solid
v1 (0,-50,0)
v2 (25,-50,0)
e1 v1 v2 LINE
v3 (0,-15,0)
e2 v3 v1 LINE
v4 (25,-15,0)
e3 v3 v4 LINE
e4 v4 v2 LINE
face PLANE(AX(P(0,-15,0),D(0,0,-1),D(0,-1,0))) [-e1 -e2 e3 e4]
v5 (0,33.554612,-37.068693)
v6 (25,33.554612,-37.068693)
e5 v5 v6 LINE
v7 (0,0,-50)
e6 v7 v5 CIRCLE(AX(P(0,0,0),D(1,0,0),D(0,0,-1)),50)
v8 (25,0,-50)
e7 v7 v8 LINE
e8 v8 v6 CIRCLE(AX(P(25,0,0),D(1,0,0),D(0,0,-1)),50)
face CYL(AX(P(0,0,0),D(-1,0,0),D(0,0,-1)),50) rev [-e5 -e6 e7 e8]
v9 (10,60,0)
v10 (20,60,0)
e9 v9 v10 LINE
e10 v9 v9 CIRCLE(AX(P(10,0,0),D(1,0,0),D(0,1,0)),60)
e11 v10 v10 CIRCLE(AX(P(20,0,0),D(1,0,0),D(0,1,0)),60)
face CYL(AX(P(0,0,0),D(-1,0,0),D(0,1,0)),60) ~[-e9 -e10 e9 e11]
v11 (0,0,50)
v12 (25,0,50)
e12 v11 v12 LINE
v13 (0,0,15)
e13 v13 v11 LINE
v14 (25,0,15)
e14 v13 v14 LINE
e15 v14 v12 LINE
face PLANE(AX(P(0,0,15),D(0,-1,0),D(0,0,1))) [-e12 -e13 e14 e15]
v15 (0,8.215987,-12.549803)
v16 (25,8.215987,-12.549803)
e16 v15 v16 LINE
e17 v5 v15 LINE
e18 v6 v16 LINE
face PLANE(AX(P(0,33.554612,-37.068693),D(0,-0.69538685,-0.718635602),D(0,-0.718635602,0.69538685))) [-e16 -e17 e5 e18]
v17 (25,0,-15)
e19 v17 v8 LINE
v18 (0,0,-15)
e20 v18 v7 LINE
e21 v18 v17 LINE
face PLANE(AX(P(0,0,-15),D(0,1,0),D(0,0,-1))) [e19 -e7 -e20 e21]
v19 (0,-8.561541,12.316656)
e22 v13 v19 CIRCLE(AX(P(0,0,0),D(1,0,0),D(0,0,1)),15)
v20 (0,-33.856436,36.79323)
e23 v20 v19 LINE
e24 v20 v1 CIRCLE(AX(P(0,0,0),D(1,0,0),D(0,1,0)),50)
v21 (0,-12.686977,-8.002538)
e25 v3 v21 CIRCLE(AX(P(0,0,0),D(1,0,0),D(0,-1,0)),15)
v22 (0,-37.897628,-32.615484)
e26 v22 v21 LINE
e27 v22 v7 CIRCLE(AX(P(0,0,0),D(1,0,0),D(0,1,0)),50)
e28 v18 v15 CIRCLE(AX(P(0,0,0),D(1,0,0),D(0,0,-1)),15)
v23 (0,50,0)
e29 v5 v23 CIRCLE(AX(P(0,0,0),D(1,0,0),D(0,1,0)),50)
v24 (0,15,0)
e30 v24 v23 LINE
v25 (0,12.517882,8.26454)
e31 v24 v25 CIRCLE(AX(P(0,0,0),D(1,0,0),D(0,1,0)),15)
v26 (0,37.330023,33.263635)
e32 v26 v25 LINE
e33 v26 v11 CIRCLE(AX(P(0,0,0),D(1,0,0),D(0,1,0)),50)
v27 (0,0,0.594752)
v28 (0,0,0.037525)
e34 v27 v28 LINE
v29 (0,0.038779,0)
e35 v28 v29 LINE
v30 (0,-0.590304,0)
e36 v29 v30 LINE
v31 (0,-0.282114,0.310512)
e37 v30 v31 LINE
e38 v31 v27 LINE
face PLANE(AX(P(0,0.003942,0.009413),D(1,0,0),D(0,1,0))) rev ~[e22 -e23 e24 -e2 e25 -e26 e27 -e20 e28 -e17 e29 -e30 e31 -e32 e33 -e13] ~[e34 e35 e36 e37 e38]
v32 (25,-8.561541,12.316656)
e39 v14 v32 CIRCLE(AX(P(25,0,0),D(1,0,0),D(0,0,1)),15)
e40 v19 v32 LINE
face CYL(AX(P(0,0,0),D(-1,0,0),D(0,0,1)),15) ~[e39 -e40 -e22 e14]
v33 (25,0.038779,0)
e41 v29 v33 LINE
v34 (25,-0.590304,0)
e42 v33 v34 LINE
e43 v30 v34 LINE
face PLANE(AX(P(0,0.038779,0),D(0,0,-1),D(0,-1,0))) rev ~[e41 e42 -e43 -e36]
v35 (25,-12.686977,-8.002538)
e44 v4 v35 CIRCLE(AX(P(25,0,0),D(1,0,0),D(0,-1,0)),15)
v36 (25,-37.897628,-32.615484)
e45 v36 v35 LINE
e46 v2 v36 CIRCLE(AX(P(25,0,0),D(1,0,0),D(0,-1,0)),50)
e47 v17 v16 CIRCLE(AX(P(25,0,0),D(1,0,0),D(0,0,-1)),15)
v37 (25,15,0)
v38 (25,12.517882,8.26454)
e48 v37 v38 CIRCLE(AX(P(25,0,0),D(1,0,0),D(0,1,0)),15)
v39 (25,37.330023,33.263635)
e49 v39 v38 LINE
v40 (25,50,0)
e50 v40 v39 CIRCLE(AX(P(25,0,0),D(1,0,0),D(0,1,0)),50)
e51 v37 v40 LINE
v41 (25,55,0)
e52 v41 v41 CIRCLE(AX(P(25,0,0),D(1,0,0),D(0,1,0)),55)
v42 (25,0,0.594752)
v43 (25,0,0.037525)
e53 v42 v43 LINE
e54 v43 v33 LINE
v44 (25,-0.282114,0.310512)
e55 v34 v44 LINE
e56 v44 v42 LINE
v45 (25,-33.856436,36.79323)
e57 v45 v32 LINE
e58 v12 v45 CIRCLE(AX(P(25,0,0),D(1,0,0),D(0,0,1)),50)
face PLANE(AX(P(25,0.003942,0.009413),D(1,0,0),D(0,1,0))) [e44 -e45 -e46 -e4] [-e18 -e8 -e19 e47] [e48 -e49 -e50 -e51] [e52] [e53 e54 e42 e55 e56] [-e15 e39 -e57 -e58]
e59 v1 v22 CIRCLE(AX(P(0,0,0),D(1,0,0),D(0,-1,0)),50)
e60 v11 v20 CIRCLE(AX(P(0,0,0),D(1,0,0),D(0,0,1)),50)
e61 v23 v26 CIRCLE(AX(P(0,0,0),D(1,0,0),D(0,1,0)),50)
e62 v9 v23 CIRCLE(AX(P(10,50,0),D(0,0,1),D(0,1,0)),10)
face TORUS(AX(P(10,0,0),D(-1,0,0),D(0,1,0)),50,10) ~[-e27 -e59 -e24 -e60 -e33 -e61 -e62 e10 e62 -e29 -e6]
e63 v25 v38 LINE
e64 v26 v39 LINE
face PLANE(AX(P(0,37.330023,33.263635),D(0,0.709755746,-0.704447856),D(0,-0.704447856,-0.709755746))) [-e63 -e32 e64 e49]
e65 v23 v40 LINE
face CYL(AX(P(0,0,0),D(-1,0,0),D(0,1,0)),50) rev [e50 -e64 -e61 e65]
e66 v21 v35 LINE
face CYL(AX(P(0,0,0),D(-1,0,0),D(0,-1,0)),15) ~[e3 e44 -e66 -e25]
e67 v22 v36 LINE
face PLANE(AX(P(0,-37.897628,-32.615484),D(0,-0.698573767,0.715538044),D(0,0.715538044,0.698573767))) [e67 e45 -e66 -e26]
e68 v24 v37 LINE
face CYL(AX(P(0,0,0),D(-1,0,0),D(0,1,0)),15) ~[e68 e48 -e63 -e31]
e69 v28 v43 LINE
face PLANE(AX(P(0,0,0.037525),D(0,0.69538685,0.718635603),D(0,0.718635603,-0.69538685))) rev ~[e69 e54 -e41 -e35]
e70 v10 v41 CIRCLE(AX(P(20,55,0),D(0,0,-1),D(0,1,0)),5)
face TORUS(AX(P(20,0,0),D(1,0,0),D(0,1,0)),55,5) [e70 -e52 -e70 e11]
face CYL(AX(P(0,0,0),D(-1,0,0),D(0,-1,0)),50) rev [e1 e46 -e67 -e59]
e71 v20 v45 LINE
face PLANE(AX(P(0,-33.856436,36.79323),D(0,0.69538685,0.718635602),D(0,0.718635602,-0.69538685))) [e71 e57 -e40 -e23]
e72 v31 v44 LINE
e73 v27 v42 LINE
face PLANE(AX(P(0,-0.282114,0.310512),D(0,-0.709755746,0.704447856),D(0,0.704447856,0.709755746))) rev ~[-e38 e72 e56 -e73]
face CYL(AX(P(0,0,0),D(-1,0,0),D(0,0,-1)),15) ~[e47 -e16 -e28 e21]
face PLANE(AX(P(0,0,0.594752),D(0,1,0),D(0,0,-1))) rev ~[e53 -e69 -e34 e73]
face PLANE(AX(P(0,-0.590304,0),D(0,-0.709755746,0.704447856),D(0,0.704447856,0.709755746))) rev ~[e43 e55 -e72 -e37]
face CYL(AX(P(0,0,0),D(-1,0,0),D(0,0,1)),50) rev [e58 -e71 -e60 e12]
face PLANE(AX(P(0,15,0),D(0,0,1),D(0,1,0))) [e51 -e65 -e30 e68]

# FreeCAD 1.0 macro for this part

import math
import FreeCAD as App
import Part
import Sketcher
Q = App.Units.Quantity


def edges_at(feature, points):
    """Names of the edges that pass closest to the given points."""
    edges = feature.Shape.Edges
    near = lambda p: min(range(len(edges)), key=lambda i: edges[i].distToShape(Part.Vertex(*p))[0])
    return sorted({f"Edge{near(p) + 1}" for p in points})

doc = App.newDocument("Part")
params = doc.addObject("Spreadsheet::Sheet", "Params")
for row, (alias, value) in enumerate([
    ("sketch1_diameter", "120 mm"),
    ("sketch1_radius", "15 mm"),
    ("pad1_length", "25 mm"),
    ("fillet_radius", "5 mm"),
    ("fillet2_radius", "10 mm"),
    ("sketch2_radius", "50 mm"),
    ("sketch2_radius2", "15 mm"),
    ("sketch3_radius", "15 mm"),
    ("pad2_length", "25 mm"),
], start=1):
    params.set(f"A{row}", alias)
    params.set(f"B{row}", "=" + value)
    params.setAlias(f"B{row}", alias)

body = doc.addObject("PartDesign::Body", "Body")

# Sketch on YZ plane
sketch1 = body.newObject("Sketcher::SketchObject", "Sketch")
sketch1.AttachmentSupport = (doc.getObject("YZ_Plane"), [""])
sketch1.MapMode = "FlatFace"
sketch1.addGeometry(Part.Circle(App.Vector(0, 0, 0), App.Vector(0, 0, 1), 60), False)
sketch1.addGeometry(Part.ArcOfCircle(Part.Circle(App.Vector(0, 0, 0), App.Vector(0, 0, 1), 15), math.radians(0), math.radians(33)), False)
sketch1.addGeometry(Part.ArcOfCircle(Part.Circle(App.Vector(0, 0, 0), App.Vector(0, 0, 1), 15), math.radians(-44), math.radians(0)), False)
sketch1.addGeometry(Part.ArcOfCircle(Part.Circle(App.Vector(0, 0, 0), App.Vector(0, 0, 1), 15), math.radians(-56.79), math.radians(-43.96)), False)
sketch1.addGeometry(Part.ArcOfCircle(Part.Circle(App.Vector(0, 0, 0), App.Vector(0, 0, 1), 15), math.radians(-90), math.radians(-57)), False)
sketch1.addGeometry(Part.ArcOfCircle(Part.Circle(App.Vector(0, 0, 0), App.Vector(0, 0, 1), 15), math.radians(-136), math.radians(-90)), False)
sketch1.addGeometry(Part.ArcOfCircle(Part.Circle(App.Vector(0, 0, 0), App.Vector(0, 0, 1), 15), math.radians(-147.76), math.radians(-136.39)), False)
sketch1.addGeometry(Part.ArcOfCircle(Part.Circle(App.Vector(0, 0, 0), App.Vector(0, 0, 1), 15), math.radians(180), math.radians(212)), False)
sketch1.addGeometry(Part.ArcOfCircle(Part.Circle(App.Vector(0, 0, 0), App.Vector(0, 0, 1), 15), math.radians(136), math.radians(180)), False)
sketch1.addGeometry(Part.ArcOfCircle(Part.Circle(App.Vector(0, 0, 0), App.Vector(0, 0, 1), 15), math.radians(124.8), math.radians(135.84)), False)
sketch1.addGeometry(Part.ArcOfCircle(Part.Circle(App.Vector(0, 0, 0), App.Vector(0, 0, 1), 15), math.radians(90), math.radians(125)), False)
sketch1.addGeometry(Part.ArcOfCircle(Part.Circle(App.Vector(0, 0, 0), App.Vector(0, 0, 1), 15), math.radians(78.25), math.radians(90)), False)
sketch1.addGeometry(Part.ArcOfCircle(Part.Circle(App.Vector(0, 0, 0), App.Vector(0, 0, 1), 15), math.radians(47), math.radians(78)), False)
sketch1.addGeometry(Part.ArcOfCircle(Part.Circle(App.Vector(0, 0, 0), App.Vector(0, 0, 1), 15), math.radians(33.43), math.radians(46.82)), False)
sketch1.addConstraint(Sketcher.Constraint("Tangent", 1, 1, 2, 2))
sketch1.addConstraint(Sketcher.Constraint("Tangent", 2, 1, 3, 2))
sketch1.addConstraint(Sketcher.Constraint("Tangent", 3, 1, 4, 2))
sketch1.addConstraint(Sketcher.Constraint("Tangent", 4, 1, 5, 2))
sketch1.addConstraint(Sketcher.Constraint("Tangent", 5, 1, 6, 2))
sketch1.addConstraint(Sketcher.Constraint("Tangent", 6, 1, 7, 2))
sketch1.addConstraint(Sketcher.Constraint("Tangent", 7, 1, 8, 2))
sketch1.addConstraint(Sketcher.Constraint("Tangent", 8, 1, 9, 2))
sketch1.addConstraint(Sketcher.Constraint("Tangent", 9, 1, 10, 2))
sketch1.addConstraint(Sketcher.Constraint("Tangent", 10, 1, 11, 2))
sketch1.addConstraint(Sketcher.Constraint("Tangent", 11, 1, 12, 2))
sketch1.addConstraint(Sketcher.Constraint("Tangent", 12, 1, 13, 2))
sketch1.addConstraint(Sketcher.Constraint("Tangent", 13, 1, 1, 2))
sketch1.addConstraint(Sketcher.Constraint("Coincident", 0, 3, -1, 1))
sketch1.addConstraint(Sketcher.Constraint("Coincident", 1, 3, -1, 1))
sketch1.addConstraint(Sketcher.Constraint("Coincident", 3, 3, -1, 1))
sketch1.addConstraint(Sketcher.Constraint("Coincident", 5, 3, -1, 1))
sketch1.addConstraint(Sketcher.Constraint("Coincident", 7, 3, -1, 1))
sketch1.addConstraint(Sketcher.Constraint("Coincident", 9, 3, -1, 1))
sketch1.addConstraint(Sketcher.Constraint("Coincident", 11, 3, -1, 1))
sketch1.addConstraint(Sketcher.Constraint("PointOnObject", 1, 1, -1))
sketch1.addConstraint(Sketcher.Constraint("PointOnObject", 4, 1, -2))
sketch1.addConstraint(Sketcher.Constraint("PointOnObject", 7, 1, -1))
sketch1.addConstraint(Sketcher.Constraint("PointOnObject", 10, 1, -2))
sketch1.addConstraint(Sketcher.Constraint("Diameter", 0, Q("120 mm")))
sketch1.addConstraint(Sketcher.Constraint("Radius", 1, Q("15 mm")))
sketch1.addConstraint(Sketcher.Constraint("DistanceY", 5, 1, 6, 1, Q("2.344501 mm")))
sketch1.addConstraint(Sketcher.Constraint("DistanceX", -1, 1, 2, 1, Q("10.798269 mm")))
sketch1.addConstraint(Sketcher.Constraint("DistanceY", 5, 1, -1, 1, Q("10.347039 mm")))
sketch1.addConstraint(Sketcher.Constraint("DistanceX", 9, 1, -1, 1, Q("8.561541 mm")))
sketch1.addConstraint(Sketcher.Constraint("DistanceY", -1, 1, 13, 1, Q("8.26454 mm")))
sketch1.addConstraint(Sketcher.Constraint("DistanceY", 8, 1, 9, 1, Q("1.866491 mm")))
sketch1.addConstraint(Sketcher.Constraint("DistanceY", 9, 1, 11, 1, Q("2.36912 mm")))
sketch1.addConstraint(Sketcher.Constraint("DistanceY", 12, 1, 11, 1, Q("3.74845 mm")))
sketch1.addConstraint(Sketcher.Constraint("DistanceX", -1, 1, 3, 1, Q("8.215987 mm")))
sketch1.setExpression("Constraints[24]", "Params.sketch1_diameter")
sketch1.setExpression("Constraints[25]", "Params.sketch1_radius")
pad1 = body.newObject("PartDesign::Pad", "Pad")
pad1.Profile = sketch1
pad1.setExpression("Length", "Params.pad1_length")
doc.recompute()

fillet = body.newObject("PartDesign::Fillet", "Fillet")
fillet.Base = (pad1, edges_at(pad1, [(25, -60, 0)]))
fillet.setExpression("Radius", "Params.fillet_radius")
doc.recompute()

fillet2 = body.newObject("PartDesign::Fillet", "Fillet001")
fillet2.Base = (fillet, edges_at(fillet, [(0, -60, 0)]))
fillet2.setExpression("Radius", "Params.fillet2_radius")

# Sketch on YZ plane
sketch2 = body.newObject("Sketcher::SketchObject", "Sketch001")
sketch2.AttachmentSupport = (doc.getObject("YZ_Plane"), [""])
sketch2.MapMode = "FlatFace"
sketch2.addGeometry(Part.LineSegment(App.Vector(0, 15, 0), App.Vector(0, 50, 0)), False)
sketch2.addGeometry(Part.ArcOfCircle(Part.Circle(App.Vector(0, 0, 0), App.Vector(0, 0, 1), 50), math.radians(90), math.radians(133)), False)
sketch2.addGeometry(Part.LineSegment(App.Vector(-34, 37, 0), App.Vector(-9, 12, 0)), False)
sketch2.addGeometry(Part.ArcOfCircle(Part.Circle(App.Vector(0, 0, 0), App.Vector(0, 0, 1), 15), math.radians(90), math.radians(125)), False)
sketch2.addGeometry(Part.ArcOfCircle(Part.Circle(App.Vector(0, 0, 0), App.Vector(0, 0, 1), 50), math.radians(180), math.radians(221)), False)
sketch2.addGeometry(Part.LineSegment(App.Vector(-38, -33, 0), App.Vector(-13, -8, 0)), False)
sketch2.addGeometry(Part.ArcOfCircle(Part.Circle(App.Vector(0, 0, 0), App.Vector(0, 0, 1), 15), math.radians(180), math.radians(212)), False)
sketch2.addGeometry(Part.LineSegment(App.Vector(-15, 0, 0), App.Vector(-50, 0, 0)), False)
sketch2.addGeometry(Part.ArcOfCircle(Part.Circle(App.Vector(0, 0, 0), App.Vector(0, 0, 1), 50), math.radians(-90), math.radians(-48)), False)
sketch2.addGeometry(Part.LineSegment(App.Vector(34, -37, 0), App.Vector(8, -13, 0)), False)
sketch2.addGeometry(Part.ArcOfCircle(Part.Circle(App.Vector(0, 0, 0), App.Vector(0, 0, 1), 15), math.radians(-90), math.radians(-57)), False)
sketch2.addGeometry(Part.LineSegment(App.Vector(0, -15, 0), App.Vector(0, -50, 0)), False)
sketch2.addGeometry(Part.LineSegment(App.Vector(15, 0, 0), App.Vector(50, 0, 0)), False)
sketch2.addGeometry(Part.ArcOfCircle(Part.Circle(App.Vector(0, 0, 0), App.Vector(0, 0, 1), 50), math.radians(0), math.radians(42)), False)
sketch2.addGeometry(Part.LineSegment(App.Vector(37, 33, 0), App.Vector(13, 8, 0)), False)
sketch2.addGeometry(Part.ArcOfCircle(Part.Circle(App.Vector(0, 0, 0), App.Vector(0, 0, 1), 15), math.radians(0), math.radians(33)), False)
sketch2.addConstraint(Sketcher.Constraint("Coincident", 0, 2, 1, 1))
sketch2.addConstraint(Sketcher.Constraint("Coincident", 1, 2, 2, 1))
sketch2.addConstraint(Sketcher.Constraint("Coincident", 2, 2, 3, 2))
sketch2.addConstraint(Sketcher.Constraint("Coincident", 3, 1, 0, 1))
sketch2.addConstraint(Sketcher.Constraint("Coincident", 4, 2, 5, 1))
sketch2.addConstraint(Sketcher.Constraint("Coincident", 5, 2, 6, 2))
sketch2.addConstraint(Sketcher.Constraint("Coincident", 6, 1, 7, 1))
sketch2.addConstraint(Sketcher.Constraint("Coincident", 7, 2, 4, 1))
sketch2.addConstraint(Sketcher.Constraint("Coincident", 8, 2, 9, 1))
sketch2.addConstraint(Sketcher.Constraint("Coincident", 9, 2, 10, 2))
sketch2.addConstraint(Sketcher.Constraint("Coincident", 10, 1, 11, 1))
sketch2.addConstraint(Sketcher.Constraint("Coincident", 11, 2, 8, 1))
sketch2.addConstraint(Sketcher.Constraint("Coincident", 12, 2, 13, 1))
sketch2.addConstraint(Sketcher.Constraint("Coincident", 13, 2, 14, 1))
sketch2.addConstraint(Sketcher.Constraint("Coincident", 14, 2, 15, 2))
sketch2.addConstraint(Sketcher.Constraint("Coincident", 15, 1, 12, 1))
sketch2.addConstraint(Sketcher.Constraint("Vertical", 0))
sketch2.addConstraint(Sketcher.Constraint("Horizontal", 7))
sketch2.addConstraint(Sketcher.Constraint("Vertical", 11))
sketch2.addConstraint(Sketcher.Constraint("Horizontal", 12))
sketch2.addConstraint(Sketcher.Constraint("Coincident", 1, 3, -1, 1))
sketch2.addConstraint(Sketcher.Constraint("Coincident", 3, 3, -1, 1))
sketch2.addConstraint(Sketcher.Constraint("Coincident", 4, 3, -1, 1))
sketch2.addConstraint(Sketcher.Constraint("Coincident", 6, 3, -1, 1))
sketch2.addConstraint(Sketcher.Constraint("Coincident", 8, 3, -1, 1))
sketch2.addConstraint(Sketcher.Constraint("Coincident", 10, 3, -1, 1))
sketch2.addConstraint(Sketcher.Constraint("Coincident", 13, 3, -1, 1))
sketch2.addConstraint(Sketcher.Constraint("Coincident", 15, 3, -1, 1))
sketch2.addConstraint(Sketcher.Constraint("Equal", 1, 4))
sketch2.addConstraint(Sketcher.Constraint("Equal", 3, 6))
sketch2.addConstraint(Sketcher.Constraint("Equal", 4, 8))
sketch2.addConstraint(Sketcher.Constraint("Equal", 6, 10))
sketch2.addConstraint(Sketcher.Constraint("Equal", 8, 13))
sketch2.addConstraint(Sketcher.Constraint("Equal", 10, 15))
sketch2.addConstraint(Sketcher.Constraint("PointOnObject", 0, 2, -2))
sketch2.addConstraint(Sketcher.Constraint("PointOnObject", 6, 1, -1))
sketch2.addConstraint(Sketcher.Constraint("PointOnObject", 10, 1, -2))
sketch2.addConstraint(Sketcher.Constraint("PointOnObject", 12, 2, -1))
sketch2.addConstraint(Sketcher.Constraint("Parallel", 2, 9))
sketch2.addConstraint(Sketcher.Constraint("Radius", 1, Q("50 mm")))
sketch2.addConstraint(Sketcher.Constraint("Radius", 3, Q("15 mm")))
sketch2.addConstraint(Sketcher.Constraint("Distance", 2, Q("35.198499 mm")))
sketch2.addConstraint(Sketcher.Constraint("Distance", 5, Q("35.233138 mm")))
sketch2.addConstraint(Sketcher.Constraint("Distance", 9, Q("35.259352 mm")))
sketch2.addConstraint(Sketcher.Constraint("Distance", 14, Q("35.22211 mm")))
sketch2.addConstraint(Sketcher.Constraint("DistanceY", -1, 1, 1, 2, Q("36.79323 mm")))
sketch2.addConstraint(Sketcher.Constraint("DistanceY", 5, 2, -1, 1, Q("8.002538 mm")))
sketch2.addConstraint(Sketcher.Constraint("DistanceY", -1, 1, 14, 2, Q("8.26454 mm")))
sketch2.setExpression("Constraints[39]", "Params.sketch2_radius")
sketch2.setExpression("Constraints[40]", "Params.sketch2_radius2")
pocket1 = body.newObject("PartDesign::Pocket", "Pocket")
pocket1.Profile = sketch2
pocket1.Type = "ThroughAll"
pocket1.Reversed = True

# Sketch on YZ plane
sketch3 = body.newObject("Sketcher::SketchObject", "Sketch002")
sketch3.AttachmentSupport = (doc.getObject("YZ_Plane"), [""])
sketch3.MapMode = "FlatFace"
sketch3.addGeometry(Part.ArcOfCircle(Part.Circle(App.Vector(0, 0, 0), App.Vector(0, 0, 1), 15), math.radians(-44), math.radians(0)), False)
sketch3.addGeometry(Part.ArcOfCircle(Part.Circle(App.Vector(0, 0, 0), App.Vector(0, 0, 1), 15), math.radians(0), math.radians(33)), False)
sketch3.addGeometry(Part.ArcOfCircle(Part.Circle(App.Vector(0, 0, 0), App.Vector(0, 0, 1), 15), math.radians(33.43), math.radians(46.82)), False)
sketch3.addGeometry(Part.ArcOfCircle(Part.Circle(App.Vector(0, 0, 0), App.Vector(0, 0, 1), 15), math.radians(47), math.radians(78)), False)
sketch3.addGeometry(Part.ArcOfCircle(Part.Circle(App.Vector(0, 0, 0), App.Vector(0, 0, 1), 15), math.radians(78.25), math.radians(90)), False)
sketch3.addGeometry(Part.ArcOfCircle(Part.Circle(App.Vector(0, 0, 0), App.Vector(0, 0, 1), 15), math.radians(90), math.radians(125)), False)
sketch3.addGeometry(Part.ArcOfCircle(Part.Circle(App.Vector(0, 0, 0), App.Vector(0, 0, 1), 15), math.radians(124.8), math.radians(135.84)), False)
sketch3.addGeometry(Part.ArcOfCircle(Part.Circle(App.Vector(0, 0, 0), App.Vector(0, 0, 1), 15), math.radians(136), math.radians(180)), False)
sketch3.addGeometry(Part.ArcOfCircle(Part.Circle(App.Vector(0, 0, 0), App.Vector(0, 0, 1), 15), math.radians(180), math.radians(212)), False)
sketch3.addGeometry(Part.ArcOfCircle(Part.Circle(App.Vector(0, 0, 0), App.Vector(0, 0, 1), 15), math.radians(-147.76), math.radians(-136.39)), False)
sketch3.addGeometry(Part.ArcOfCircle(Part.Circle(App.Vector(0, 0, 0), App.Vector(0, 0, 1), 15), math.radians(-136), math.radians(-90)), False)
sketch3.addGeometry(Part.ArcOfCircle(Part.Circle(App.Vector(0, 0, 0), App.Vector(0, 0, 1), 15), math.radians(-90), math.radians(-57)), False)
sketch3.addGeometry(Part.ArcOfCircle(Part.Circle(App.Vector(0, 0, 0), App.Vector(0, 0, 1), 15), math.radians(-56.79), math.radians(-43.96)), False)
sketch3.addGeometry(Part.LineSegment(App.Vector(-0.59, 0, 0), App.Vector(-0.28, 0.31, 0)), False)
sketch3.addGeometry(Part.LineSegment(App.Vector(-0.28, 0.31, 0), App.Vector(0, 0.59, 0)), False)
sketch3.addGeometry(Part.LineSegment(App.Vector(0, 0.59, 0), App.Vector(0, 0.04, 0)), False)
sketch3.addGeometry(Part.LineSegment(App.Vector(0, 0.04, 0), App.Vector(0.04, 0, 0)), False)
sketch3.addGeometry(Part.LineSegment(App.Vector(0.04, 0, 0), App.Vector(-0.59, 0, 0)), False)
sketch3.addConstraint(Sketcher.Constraint("Tangent", 0, 2, 1, 1))
sketch3.addConstraint(Sketcher.Constraint("Tangent", 1, 2, 2, 1))
sketch3.addConstraint(Sketcher.Constraint("Tangent", 2, 2, 3, 1))
sketch3.addConstraint(Sketcher.Constraint("Tangent", 3, 2, 4, 1))
sketch3.addConstraint(Sketcher.Constraint("Tangent", 4, 2, 5, 1))
sketch3.addConstraint(Sketcher.Constraint("Tangent", 5, 2, 6, 1))
sketch3.addConstraint(Sketcher.Constraint("Tangent", 6, 2, 7, 1))
sketch3.addConstraint(Sketcher.Constraint("Tangent", 7, 2, 8, 1))
sketch3.addConstraint(Sketcher.Constraint("Tangent", 8, 2, 9, 1))
sketch3.addConstraint(Sketcher.Constraint("Tangent", 9, 2, 10, 1))
sketch3.addConstraint(Sketcher.Constraint("Tangent", 10, 2, 11, 1))
sketch3.addConstraint(Sketcher.Constraint("Tangent", 11, 2, 12, 1))
sketch3.addConstraint(Sketcher.Constraint("Tangent", 12, 2, 0, 1))
sketch3.addConstraint(Sketcher.Constraint("Coincident", 13, 2, 14, 1))
sketch3.addConstraint(Sketcher.Constraint("Coincident", 14, 2, 15, 1))
sketch3.addConstraint(Sketcher.Constraint("Coincident", 15, 2, 16, 1))
sketch3.addConstraint(Sketcher.Constraint("Coincident", 16, 2, 17, 1))
sketch3.addConstraint(Sketcher.Constraint("Coincident", 17, 2, 13, 1))
sketch3.addConstraint(Sketcher.Constraint("Vertical", 15))
sketch3.addConstraint(Sketcher.Constraint("Horizontal", 17))
sketch3.addConstraint(Sketcher.Constraint("Coincident", 0, 3, -1, 1))
sketch3.addConstraint(Sketcher.Constraint("Coincident", 2, 3, -1, 1))
sketch3.addConstraint(Sketcher.Constraint("Coincident", 4, 3, -1, 1))
sketch3.addConstraint(Sketcher.Constraint("Coincident", 6, 3, -1, 1))
sketch3.addConstraint(Sketcher.Constraint("Coincident", 8, 3, -1, 1))
sketch3.addConstraint(Sketcher.Constraint("Coincident", 10, 3, -1, 1))
sketch3.addConstraint(Sketcher.Constraint("PointOnObject", 0, 2, -1))
sketch3.addConstraint(Sketcher.Constraint("PointOnObject", 4, 2, -2))
sketch3.addConstraint(Sketcher.Constraint("PointOnObject", 7, 2, -1))
sketch3.addConstraint(Sketcher.Constraint("PointOnObject", 10, 2, -2))
sketch3.addConstraint(Sketcher.Constraint("PointOnObject", 14, 2, -2))
sketch3.addConstraint(Sketcher.Constraint("PointOnObject", 16, 2, -1))
sketch3.addConstraint(Sketcher.Constraint("Parallel", 13, 14))
sketch3.addConstraint(Sketcher.Constraint("Radius", 0, Q("15 mm")))
sketch3.addConstraint(Sketcher.Constraint("DistanceY", 9, 2, 8, 2, Q("2.344501 mm")))
sketch3.addConstraint(Sketcher.Constraint("Distance", 13, Q("0.437491 mm")))
sketch3.addConstraint(Sketcher.Constraint("DistanceX", 17, 2, 17, 1, Q("0.629083 mm")))
sketch3.addConstraint(Sketcher.Constraint("DistanceY", 15, 2, 15, 1, Q("0.557227 mm")))
sketch3.addConstraint(Sketcher.Constraint("DistanceY", -1, 1, 1, 2, Q("8.26454 mm")))
sketch3.addConstraint(Sketcher.Constraint("DistanceX", 5, 2, -1, 1, Q("8.561541 mm")))
sketch3.addConstraint(Sketcher.Constraint("DistanceY", 8, 2, -1, 1, Q("8.002538 mm")))
sketch3.addConstraint(Sketcher.Constraint("DistanceX", -1, 1, 12, 2, Q("10.798269 mm")))
sketch3.addConstraint(Sketcher.Constraint("DistanceY", -1, 1, 14, 2, Q("0.594752 mm")))
sketch3.addConstraint(Sketcher.Constraint("DistanceX", -1, 1, 16, 2, Q("0.038779 mm")))
sketch3.addConstraint(Sketcher.Constraint("DistanceY", 2, 2, 3, 2, Q("3.74845 mm")))
sketch3.addConstraint(Sketcher.Constraint("DistanceX", 3, 2, 1, 2, Q("9.463708 mm")))
sketch3.addConstraint(Sketcher.Constraint("DistanceY", 6, 2, 5, 2, Q("1.866491 mm")))
sketch3.addConstraint(Sketcher.Constraint("DistanceX", -1, 1, 11, 2, Q("8.215987 mm")))
sketch3.setExpression("Constraints[33]", "Params.sketch3_radius")
pad2 = body.newObject("PartDesign::Pad", "Pad001")
pad2.Profile = sketch3
pad2.setExpression("Length", "Params.pad2_length")

doc.recompute()
